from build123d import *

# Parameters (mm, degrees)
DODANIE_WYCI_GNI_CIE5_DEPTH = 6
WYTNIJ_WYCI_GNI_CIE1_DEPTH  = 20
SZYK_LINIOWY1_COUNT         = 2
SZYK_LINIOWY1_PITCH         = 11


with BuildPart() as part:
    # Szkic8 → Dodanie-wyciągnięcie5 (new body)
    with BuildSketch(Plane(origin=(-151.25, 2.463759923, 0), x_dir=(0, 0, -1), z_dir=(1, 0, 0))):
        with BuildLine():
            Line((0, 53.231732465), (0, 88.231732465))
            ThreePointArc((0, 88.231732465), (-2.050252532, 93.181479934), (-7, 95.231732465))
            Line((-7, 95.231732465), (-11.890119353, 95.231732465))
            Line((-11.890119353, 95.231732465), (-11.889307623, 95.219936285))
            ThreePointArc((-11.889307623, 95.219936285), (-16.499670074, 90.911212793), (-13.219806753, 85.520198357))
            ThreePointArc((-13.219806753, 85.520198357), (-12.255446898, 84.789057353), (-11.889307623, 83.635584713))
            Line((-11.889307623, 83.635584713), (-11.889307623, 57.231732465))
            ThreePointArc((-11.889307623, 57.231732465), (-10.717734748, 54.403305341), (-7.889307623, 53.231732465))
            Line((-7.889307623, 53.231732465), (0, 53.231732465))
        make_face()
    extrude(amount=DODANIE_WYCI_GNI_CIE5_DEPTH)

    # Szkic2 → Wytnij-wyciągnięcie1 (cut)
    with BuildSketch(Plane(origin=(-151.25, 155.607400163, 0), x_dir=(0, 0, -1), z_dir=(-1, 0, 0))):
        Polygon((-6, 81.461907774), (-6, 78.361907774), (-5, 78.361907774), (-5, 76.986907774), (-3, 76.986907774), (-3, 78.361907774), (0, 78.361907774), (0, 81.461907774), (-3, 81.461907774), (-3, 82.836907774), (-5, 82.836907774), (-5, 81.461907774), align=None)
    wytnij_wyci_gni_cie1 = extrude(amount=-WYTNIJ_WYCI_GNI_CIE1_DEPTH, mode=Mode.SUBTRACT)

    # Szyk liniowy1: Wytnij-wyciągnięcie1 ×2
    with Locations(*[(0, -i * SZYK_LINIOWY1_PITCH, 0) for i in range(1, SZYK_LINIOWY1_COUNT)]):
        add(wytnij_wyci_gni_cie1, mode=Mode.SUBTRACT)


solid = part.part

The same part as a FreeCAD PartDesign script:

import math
import FreeCAD as App
import Part
import Sketcher
from FreeCAD import Vector

doc = App.newDocument("Part")
body = doc.addObject("PartDesign::Body", "Body")

sketch1 = body.newObject("Sketcher::SketchObject", "Sketch")
sketch1.AttachmentSupport = (doc.getObject("YZ_Plane"), [""])
sketch1.MapMode = "FlatFace"
sketch1.AttachmentOffset = App.Placement(Vector(0, 0, -151.25), App.Rotation())
sketch1.addGeometry(Part.LineSegment(Vector(55.695, 0, 0), Vector(90.695, 0, 0)), False)
sketch1.addGeometry(Part.ArcOfCircle(Part.Circle(Vector(90.695, 7, 0), Vector(0, 0, 1), 7), math.radians(-90), math.radians(0)), False)
sketch1.addGeometry(Part.LineSegment(Vector(97.695, 7, 0), Vector(97.695, 11.89, 0)), False)
sketch1.addGeometry(Part.LineSegment(Vector(97.695, 11.89, 0), Vector(97.684, 11.889, 0)), False)
sketch1.addGeometry(Part.ArcOfCircle(Part.Circle(Vector(92.695, 11.546, 0), Vector(0, 0, 1), 5), math.radians(4), math.radians(160)), False)
sketch1.addGeometry(Part.ArcOfCircle(Part.Circle(Vector(86.099, 13.889, 0), Vector(0, 0, 1), 2), math.radians(-90), math.radians(-20)), False)
sketch1.addGeometry(Part.LineSegment(Vector(86.099, 11.889, 0), Vector(59.695, 11.889, 0)), False)
sketch1.addGeometry(Part.ArcOfCircle(Part.Circle(Vector(59.695, 7.889, 0), Vector(0, 0, 1), 4), math.radians(90), math.radians(180)), False)
sketch1.addGeometry(Part.LineSegment(Vector(55.695, 7.889, 0), Vector(55.695, 0, 0)), False)
sketch1.addConstraint(Sketcher.Constraint("Tangent", 0, 2, 1, 1))
sketch1.addConstraint(Sketcher.Constraint("Tangent", 1, 2, 2, 1))
sketch1.addConstraint(Sketcher.Constraint("Coincident", 2, 2, 3, 1))
sketch1.addConstraint(Sketcher.Constraint("Coincident", 3, 2, 4, 1))
sketch1.addConstraint(Sketcher.Constraint("Tangent", 4, 2, 5, 2))
sketch1.addConstraint(Sketcher.Constraint("Tangent", 5, 1, 6, 1))
sketch1.addConstraint(Sketcher.Constraint("Tangent", 6, 2, 7, 1))
sketch1.addConstraint(Sketcher.Constraint("Tangent", 7, 2, 8, 1))
sketch1.addConstraint(Sketcher.Constraint("Coincident", 8, 2, 0, 1))
sketch1.addConstraint(Sketcher.Constraint("Horizontal", 0))
sketch1.addConstraint(Sketcher.Constraint("Vertical", 2))
sketch1.addConstraint(Sketcher.Constraint("Horizontal", 6))
sketch1.addConstraint(Sketcher.Constraint("Vertical", 8))
sketch1.addConstraint(Sketcher.Constraint("PointOnObject", 0, 2, -1))
sketch1.addConstraint(Sketcher.Constraint("Horizontal", 3, 2, 5, 1))
sketch1.addConstraint(Sketcher.Constraint("Radius", 1, 7.0))
sketch1.addConstraint(Sketcher.Constraint("Radius", 4, 5.0))
sketch1.addConstraint(Sketcher.Constraint("Radius", 5, 2.0))
sketch1.addConstraint(Sketcher.Constraint("Radius", 7, 4.0))
sketch1.addConstraint(Sketcher.Constraint("DistanceX", 0, 1, 0, 2, 35.0))
sketch1.addConstraint(Sketcher.Constraint("DistanceX", 1, 3, 4, 3, 2.0))
sketch1.addConstraint(Sketcher.Constraint("DistanceY", 2, 1, 2, 2, 4.890119))
sketch1.addConstraint(Sketcher.Constraint("DistanceY", 4, 2, 5, 3, 0.669501))
sketch1.addConstraint(Sketcher.Constraint("DistanceY", 8, 2, 8, 1, 7.889308))
sketch1.addConstraint(Sketcher.Constraint("DistanceX", -1, 1, 4, 2, 87.983958))
pad1 = body.newObject("PartDesign::Pad", "Pad")
pad1.Profile = sketch1
pad1.Length = 6

sketch2 = body.newObject("Sketcher::SketchObject", "Sketch001")
sketch2.AttachmentSupport = (doc.getObject("YZ_Plane"), [""])
sketch2.MapMode = "FlatFace"
sketch2.AttachmentOffset = App.Placement(Vector(0, 0, -151.25), App.Rotation())
sketch2.addGeometry(Part.LineSegment(Vector(74.1, 6, 0), Vector(77.2, 6, 0)), False)
sketch2.addGeometry(Part.LineSegment(Vector(77.2, 6, 0), Vector(77.2, 5, 0)), False)
sketch2.addGeometry(Part.LineSegment(Vector(77.2, 5, 0), Vector(78.6, 5, 0)), False)
sketch2.addGeometry(Part.LineSegment(Vector(78.6, 5, 0), Vector(78.6, 3, 0)), False)
sketch2.addGeometry(Part.LineSegment(Vector(78.6, 3, 0), Vector(77.2, 3, 0)), False)
sketch2.addGeometry(Part.LineSegment(Vector(77.2, 3, 0), Vector(77.2, 0, 0)), False)
sketch2.addGeometry(Part.LineSegment(Vector(77.2, 0, 0), Vector(74.1, 0, 0)), False)
sketch2.addGeometry(Part.LineSegment(Vector(74.1, 0, 0), Vector(74.1, 3, 0)), False)
sketch2.addGeometry(Part.LineSegment(Vector(74.1, 3, 0), Vector(72.8, 3, 0)), False)
sketch2.addGeometry(Part.LineSegment(Vector(72.8, 3, 0), Vector(72.8, 5, 0)), False)
sketch2.addGeometry(Part.LineSegment(Vector(72.8, 5, 0), Vector(74.1, 5, 0)), False)
sketch2.addGeometry(Part.LineSegment(Vector(74.1, 5, 0), Vector(74.1, 6, 0)), False)
sketch2.addConstraint(Sketcher.Constraint("Coincident", 0, 2, 1, 1))
sketch2.addConstraint(Sketcher.Constraint("Coincident", 1, 2, 2, 1))
sketch2.addConstraint(Sketcher.Constraint("Coincident", 2, 2, 3, 1))
sketch2.addConstraint(Sketcher.Constraint("Coincident", 3, 2, 4, 1))
sketch2.addConstraint(Sketcher.Constraint("Coincident", 4, 2, 5, 1))
sketch2.addConstraint(Sketcher.Constraint("Coincident", 5, 2, 6, 1))
sketch2.addConstraint(Sketcher.Constraint("Coincident", 6, 2, 7, 1))
sketch2.addConstraint(Sketcher.Constraint("Coincident", 7, 2, 8, 1))
sketch2.addConstraint(Sketcher.Constraint("Coincident", 8, 2, 9, 1))
sketch2.addConstraint(Sketcher.Constraint("Coincident", 9, 2, 10, 1))
sketch2.addConstraint(Sketcher.Constraint("Coincident", 10, 2, 11, 1))
sketch2.addConstraint(Sketcher.Constraint("Coincident", 11, 2, 0, 1))
sketch2.addConstraint(Sketcher.Constraint("Horizontal", 0))
sketch2.addConstraint(Sketcher.Constraint("Vertical", 1))
sketch2.addConstraint(Sketcher.Constraint("Horizontal", 2))
sketch2.addConstraint(Sketcher.Constraint("Vertical", 3))
sketch2.addConstraint(Sketcher.Constraint("Horizontal", 4))
sketch2.addConstraint(Sketcher.Constraint("Vertical", 5))
sketch2.addConstraint(Sketcher.Constraint("Horizontal", 6))
sketch2.addConstraint(Sketcher.Constraint("Vertical", 7))
sketch2.addConstraint(Sketcher.Constraint("Horizontal", 8))
sketch2.addConstraint(Sketcher.Constraint("Vertical", 9))
sketch2.addConstraint(Sketcher.Constraint("Horizontal", 10))
sketch2.addConstraint(Sketcher.Constraint("Vertical", 11))
sketch2.addConstraint(Sketcher.Constraint("PointOnObject", 5, 2, -1))
sketch2.addConstraint(Sketcher.Constraint("Horizontal", 4, 2, 7, 2))
sketch2.addConstraint(Sketcher.Constraint("Horizontal", 2, 2, 9, 2))
sketch2.addConstraint(Sketcher.Constraint("Vertical", 1, 2, 4, 2))
sketch2.addConstraint(Sketcher.Constraint("Vertical", 7, 2, 10, 2))
sketch2.addConstraint(Sketcher.Constraint("Equal", 4, 8))
sketch2.addConstraint(Sketcher.Constraint("DistanceY", 1, 2, 1, 1, 1.0))
sketch2.addConstraint(Sketcher.Constraint("DistanceY", 3, 2, 3, 1, 2.0))
sketch2.addConstraint(Sketcher.Constraint("DistanceY", 5, 2, 5, 1, 3.0))
sketch2.addConstraint(Sketcher.Constraint("DistanceX", 0, 1, 0, 2, 3.1))
sketch2.addConstraint(Sketcher.Constraint("DistanceX", 2, 1, 2, 2, 1.375))
sketch2.addConstraint(Sketcher.Constraint("DistanceX", -1, 1, 0, 2, 77.245492))
pocket1 = body.newObject("PartDesign::Pocket", "Pocket")
pocket1.Profile = sketch2
pocket1.Length = 20
pocket1.Reversed = True
doc.recompute()

linearpattern = body.newObject("PartDesign::LinearPattern", "LinearPattern")
linearpattern.Originals = [pocket1]
linearpattern.Direction = (doc.getObject("Y_Axis"), [""])
linearpattern.Mode = "offset"
linearpattern.Offset = 11
linearpattern.Occurrences = 2
linearpattern.Reversed = True
body.Tip = linearpattern

doc.recompute()
